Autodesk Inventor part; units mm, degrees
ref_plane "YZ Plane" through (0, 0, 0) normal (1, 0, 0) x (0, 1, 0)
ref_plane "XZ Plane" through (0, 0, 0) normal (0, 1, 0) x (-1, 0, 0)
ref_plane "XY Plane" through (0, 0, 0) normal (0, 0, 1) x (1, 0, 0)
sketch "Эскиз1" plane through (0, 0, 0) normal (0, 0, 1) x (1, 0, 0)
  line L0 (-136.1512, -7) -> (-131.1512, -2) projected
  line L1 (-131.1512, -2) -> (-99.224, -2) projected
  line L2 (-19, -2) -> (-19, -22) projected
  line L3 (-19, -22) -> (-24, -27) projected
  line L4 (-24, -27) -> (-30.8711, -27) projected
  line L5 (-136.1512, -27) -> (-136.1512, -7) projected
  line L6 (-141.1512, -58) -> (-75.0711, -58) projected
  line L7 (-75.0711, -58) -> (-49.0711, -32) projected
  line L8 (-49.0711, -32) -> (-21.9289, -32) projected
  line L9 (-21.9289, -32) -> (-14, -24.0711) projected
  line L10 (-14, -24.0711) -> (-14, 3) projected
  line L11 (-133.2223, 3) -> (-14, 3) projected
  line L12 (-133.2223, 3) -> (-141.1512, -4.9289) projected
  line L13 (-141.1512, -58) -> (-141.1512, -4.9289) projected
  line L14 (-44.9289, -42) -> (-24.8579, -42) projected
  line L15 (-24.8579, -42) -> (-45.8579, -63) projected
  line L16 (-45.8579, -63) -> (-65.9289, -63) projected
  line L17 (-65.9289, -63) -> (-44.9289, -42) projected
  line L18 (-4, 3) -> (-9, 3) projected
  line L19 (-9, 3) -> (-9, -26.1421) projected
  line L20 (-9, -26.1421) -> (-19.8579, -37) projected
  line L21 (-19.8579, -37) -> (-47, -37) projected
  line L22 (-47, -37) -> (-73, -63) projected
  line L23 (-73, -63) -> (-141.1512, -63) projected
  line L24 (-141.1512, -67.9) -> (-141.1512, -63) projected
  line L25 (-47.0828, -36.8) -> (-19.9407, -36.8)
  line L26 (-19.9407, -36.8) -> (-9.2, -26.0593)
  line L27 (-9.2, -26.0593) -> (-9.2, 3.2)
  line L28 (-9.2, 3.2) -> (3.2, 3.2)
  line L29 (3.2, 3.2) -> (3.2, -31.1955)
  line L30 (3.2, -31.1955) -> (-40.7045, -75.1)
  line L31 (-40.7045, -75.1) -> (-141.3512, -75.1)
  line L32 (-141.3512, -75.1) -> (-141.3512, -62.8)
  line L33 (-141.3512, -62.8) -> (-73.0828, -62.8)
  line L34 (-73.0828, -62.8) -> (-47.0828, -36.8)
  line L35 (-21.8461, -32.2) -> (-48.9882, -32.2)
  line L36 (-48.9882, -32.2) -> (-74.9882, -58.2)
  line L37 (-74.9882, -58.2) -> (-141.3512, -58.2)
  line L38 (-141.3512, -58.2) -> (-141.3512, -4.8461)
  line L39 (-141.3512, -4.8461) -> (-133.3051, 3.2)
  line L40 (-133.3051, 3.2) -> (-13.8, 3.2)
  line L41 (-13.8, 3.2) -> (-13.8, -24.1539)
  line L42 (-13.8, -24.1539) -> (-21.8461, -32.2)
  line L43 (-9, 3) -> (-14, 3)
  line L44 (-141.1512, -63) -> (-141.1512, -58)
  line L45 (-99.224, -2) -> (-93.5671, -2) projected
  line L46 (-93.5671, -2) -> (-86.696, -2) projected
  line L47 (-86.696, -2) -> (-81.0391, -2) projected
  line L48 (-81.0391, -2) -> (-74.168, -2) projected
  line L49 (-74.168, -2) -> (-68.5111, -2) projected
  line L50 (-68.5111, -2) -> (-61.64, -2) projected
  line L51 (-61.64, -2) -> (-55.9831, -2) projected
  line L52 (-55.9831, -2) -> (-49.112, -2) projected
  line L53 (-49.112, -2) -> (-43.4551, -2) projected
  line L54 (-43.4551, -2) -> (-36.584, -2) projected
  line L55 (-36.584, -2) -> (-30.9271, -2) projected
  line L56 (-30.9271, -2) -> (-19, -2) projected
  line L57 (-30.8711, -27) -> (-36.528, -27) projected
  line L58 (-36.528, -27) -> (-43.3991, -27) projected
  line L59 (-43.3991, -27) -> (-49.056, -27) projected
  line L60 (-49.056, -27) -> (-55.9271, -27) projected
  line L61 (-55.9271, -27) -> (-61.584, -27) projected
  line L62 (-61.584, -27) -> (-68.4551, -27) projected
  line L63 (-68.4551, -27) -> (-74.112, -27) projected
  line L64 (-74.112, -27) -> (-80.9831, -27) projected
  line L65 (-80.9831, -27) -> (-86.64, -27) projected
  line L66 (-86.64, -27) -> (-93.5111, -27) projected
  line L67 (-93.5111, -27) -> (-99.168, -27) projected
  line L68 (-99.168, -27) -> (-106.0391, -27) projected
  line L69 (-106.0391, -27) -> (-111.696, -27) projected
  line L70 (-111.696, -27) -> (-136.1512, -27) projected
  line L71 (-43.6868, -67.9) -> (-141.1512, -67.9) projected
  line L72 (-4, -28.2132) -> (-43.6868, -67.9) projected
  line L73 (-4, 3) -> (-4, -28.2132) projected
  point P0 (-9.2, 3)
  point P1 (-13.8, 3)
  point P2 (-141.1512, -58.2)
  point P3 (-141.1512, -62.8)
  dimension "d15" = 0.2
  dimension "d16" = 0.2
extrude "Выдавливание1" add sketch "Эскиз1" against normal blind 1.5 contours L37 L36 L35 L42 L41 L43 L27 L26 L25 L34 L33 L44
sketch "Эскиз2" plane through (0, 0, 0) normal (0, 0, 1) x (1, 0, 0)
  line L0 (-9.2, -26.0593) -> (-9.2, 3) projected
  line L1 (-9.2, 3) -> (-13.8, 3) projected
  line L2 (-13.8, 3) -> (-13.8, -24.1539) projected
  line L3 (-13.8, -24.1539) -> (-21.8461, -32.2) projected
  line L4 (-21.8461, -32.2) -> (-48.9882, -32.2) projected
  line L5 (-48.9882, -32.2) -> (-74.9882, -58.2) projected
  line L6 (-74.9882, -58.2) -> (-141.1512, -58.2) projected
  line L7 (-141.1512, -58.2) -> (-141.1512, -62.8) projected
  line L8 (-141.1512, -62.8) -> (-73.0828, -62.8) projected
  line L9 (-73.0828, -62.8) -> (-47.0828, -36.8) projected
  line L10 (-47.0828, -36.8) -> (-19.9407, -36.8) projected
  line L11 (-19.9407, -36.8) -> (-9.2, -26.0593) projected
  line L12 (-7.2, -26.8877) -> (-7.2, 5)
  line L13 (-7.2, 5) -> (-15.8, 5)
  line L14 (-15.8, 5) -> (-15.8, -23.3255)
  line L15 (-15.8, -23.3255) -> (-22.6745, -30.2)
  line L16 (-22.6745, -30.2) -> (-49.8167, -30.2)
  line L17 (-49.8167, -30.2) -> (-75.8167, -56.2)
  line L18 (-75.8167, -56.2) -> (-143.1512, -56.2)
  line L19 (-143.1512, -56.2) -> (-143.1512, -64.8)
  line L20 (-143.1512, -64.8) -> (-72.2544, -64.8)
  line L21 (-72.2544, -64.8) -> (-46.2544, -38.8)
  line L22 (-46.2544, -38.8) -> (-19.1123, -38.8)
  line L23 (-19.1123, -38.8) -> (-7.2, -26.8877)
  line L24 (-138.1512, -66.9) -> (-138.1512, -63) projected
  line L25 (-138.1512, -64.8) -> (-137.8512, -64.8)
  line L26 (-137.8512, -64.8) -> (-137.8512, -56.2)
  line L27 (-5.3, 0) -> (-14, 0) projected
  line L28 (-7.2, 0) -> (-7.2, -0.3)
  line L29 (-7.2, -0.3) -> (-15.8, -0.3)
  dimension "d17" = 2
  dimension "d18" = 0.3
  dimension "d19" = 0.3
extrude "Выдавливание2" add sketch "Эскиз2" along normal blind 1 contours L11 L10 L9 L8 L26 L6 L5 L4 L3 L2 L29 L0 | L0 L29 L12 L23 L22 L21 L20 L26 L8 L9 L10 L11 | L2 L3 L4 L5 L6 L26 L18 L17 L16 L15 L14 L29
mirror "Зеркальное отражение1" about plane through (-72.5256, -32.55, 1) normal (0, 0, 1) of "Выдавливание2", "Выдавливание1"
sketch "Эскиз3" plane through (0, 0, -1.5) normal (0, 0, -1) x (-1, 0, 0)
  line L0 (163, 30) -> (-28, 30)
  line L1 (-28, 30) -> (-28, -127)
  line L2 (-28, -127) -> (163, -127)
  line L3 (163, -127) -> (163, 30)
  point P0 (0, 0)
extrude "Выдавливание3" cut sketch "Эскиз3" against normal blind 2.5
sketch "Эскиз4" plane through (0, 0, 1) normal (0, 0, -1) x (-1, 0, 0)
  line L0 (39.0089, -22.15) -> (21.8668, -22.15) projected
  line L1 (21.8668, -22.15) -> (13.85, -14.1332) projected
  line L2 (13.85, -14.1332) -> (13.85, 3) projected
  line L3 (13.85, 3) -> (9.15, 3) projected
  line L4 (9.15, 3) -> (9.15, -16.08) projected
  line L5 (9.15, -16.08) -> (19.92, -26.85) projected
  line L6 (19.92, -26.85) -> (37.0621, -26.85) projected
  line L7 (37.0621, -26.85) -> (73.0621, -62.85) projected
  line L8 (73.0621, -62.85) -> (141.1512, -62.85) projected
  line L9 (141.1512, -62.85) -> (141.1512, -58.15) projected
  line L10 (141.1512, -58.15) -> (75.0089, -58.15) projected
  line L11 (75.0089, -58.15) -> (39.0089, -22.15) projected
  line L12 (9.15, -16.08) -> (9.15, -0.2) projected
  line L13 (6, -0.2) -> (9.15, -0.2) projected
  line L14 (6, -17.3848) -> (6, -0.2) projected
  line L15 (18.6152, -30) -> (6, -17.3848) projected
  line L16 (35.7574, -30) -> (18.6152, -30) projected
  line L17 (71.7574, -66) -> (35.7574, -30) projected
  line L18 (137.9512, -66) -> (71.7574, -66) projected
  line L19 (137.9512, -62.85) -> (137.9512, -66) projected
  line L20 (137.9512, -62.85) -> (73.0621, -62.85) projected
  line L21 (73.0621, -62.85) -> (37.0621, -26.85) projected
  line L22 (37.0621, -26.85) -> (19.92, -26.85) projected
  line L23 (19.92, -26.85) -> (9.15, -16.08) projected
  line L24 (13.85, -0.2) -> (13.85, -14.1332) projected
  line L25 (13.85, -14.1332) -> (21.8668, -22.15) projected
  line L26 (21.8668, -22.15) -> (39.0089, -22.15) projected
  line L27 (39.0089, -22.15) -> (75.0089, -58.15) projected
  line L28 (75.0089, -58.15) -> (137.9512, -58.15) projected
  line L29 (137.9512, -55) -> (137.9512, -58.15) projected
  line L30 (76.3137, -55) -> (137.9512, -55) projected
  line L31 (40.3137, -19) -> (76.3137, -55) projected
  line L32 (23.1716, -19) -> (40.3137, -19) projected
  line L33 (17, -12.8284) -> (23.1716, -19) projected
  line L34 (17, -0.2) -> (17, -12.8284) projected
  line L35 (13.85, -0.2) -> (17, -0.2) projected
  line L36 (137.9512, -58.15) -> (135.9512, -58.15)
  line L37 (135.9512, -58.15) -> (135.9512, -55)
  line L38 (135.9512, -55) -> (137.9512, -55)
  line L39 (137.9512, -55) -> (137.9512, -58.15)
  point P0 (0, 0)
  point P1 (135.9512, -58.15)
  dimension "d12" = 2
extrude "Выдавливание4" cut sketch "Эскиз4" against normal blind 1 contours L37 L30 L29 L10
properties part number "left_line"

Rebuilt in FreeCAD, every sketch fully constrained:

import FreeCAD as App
import Part
import Sketcher
from FreeCAD import Vector
Q = App.Units.Quantity

doc = App.newDocument("Part")
body = doc.addObject("PartDesign::Body", "Body")

# Sketch on XY plane
sketch1 = doc.addObject("Sketcher::SketchObject", "Sketch")
body.addObject(sketch1)
sketch1.AttachmentSupport = (doc.XY_Plane, [""])
sketch1.MapMode = "FlatFace"
sketch1.addGeometry([
    Part.LineSegment(Vector(-75, -58.2, 0), Vector(-141.2, -58.2, 0)),  # 0
    Part.LineSegment(Vector(-141.2, -58.2, 0), Vector(-141.2, -62.8, 0)),  # 1
    Part.LineSegment(Vector(-141.2, -62.8, 0), Vector(-73.1, -62.8, 0)),  # 2
    Part.LineSegment(Vector(-73.1, -62.8, 0), Vector(-47.1, -36.8, 0)),  # 3
    Part.LineSegment(Vector(-47.1, -36.8, 0), Vector(-19.9, -36.8, 0)),  # 4
    Part.LineSegment(Vector(-19.9, -36.8, 0), Vector(-9.2, -26.1, 0)),  # 5
    Part.LineSegment(Vector(-9.2, -26.1, 0), Vector(-9.2, 3, 0)),  # 6
    Part.LineSegment(Vector(-9.2, 3, 0), Vector(-13.8, 3, 0)),  # 7
    Part.LineSegment(Vector(-13.8, 3, 0), Vector(-13.8, -24.2, 0)),  # 8
    Part.LineSegment(Vector(-13.8, -24.2, 0), Vector(-21.8, -32.2, 0)),  # 9
    Part.LineSegment(Vector(-21.8, -32.2, 0), Vector(-49, -32.2, 0)),  # 10
    Part.LineSegment(Vector(-49, -32.2, 0), Vector(-75, -58.2, 0)),  # 11
], False)
sketch1.addConstraint([
    Sketcher.Constraint("Coincident", 0, 2, 1, 1),
    Sketcher.Constraint("Coincident", 1, 2, 2, 1),
    Sketcher.Constraint("Coincident", 2, 2, 3, 1),
    Sketcher.Constraint("Coincident", 3, 2, 4, 1),
    Sketcher.Constraint("Coincident", 4, 2, 5, 1),
    Sketcher.Constraint("Coincident", 5, 2, 6, 1),
    Sketcher.Constraint("Coincident", 6, 2, 7, 1),
    Sketcher.Constraint("Coincident", 7, 2, 8, 1),
    Sketcher.Constraint("Coincident", 8, 2, 9, 1),
    Sketcher.Constraint("Coincident", 9, 2, 10, 1),
    Sketcher.Constraint("Coincident", 10, 2, 11, 1),
    Sketcher.Constraint("Coincident", 11, 2, 0, 1),
    Sketcher.Constraint("Horizontal", 0),
    Sketcher.Constraint("Vertical", 1),
    Sketcher.Constraint("Horizontal", 2),
    Sketcher.Constraint("Horizontal", 4),
    Sketcher.Constraint("Vertical", 6),
    Sketcher.Constraint("Horizontal", 7),
    Sketcher.Constraint("Vertical", 8),
    Sketcher.Constraint("Horizontal", 10),
    Sketcher.Constraint("Parallel", 3, 5),
    Sketcher.Constraint("Parallel", 5, 9),
    Sketcher.Constraint("Parallel", 9, 11),
    Sketcher.Constraint("Equal", 4, 10),
    Sketcher.Constraint("Equal", 7, 1),
    Sketcher.Constraint("Equal", 3, 11),
    Sketcher.Constraint("Angle", 3, Q("45 deg")),
    Sketcher.Constraint("DistanceX", 7, 2, 7, 1, 4.6),
    Sketcher.Constraint("DistanceY", -1, 1, 6, 2, 3.0),
    Sketcher.Constraint("DistanceX", 2, 2, 3, 2, 26.0),
    Sketcher.Constraint("DistanceY", 0, 2, -1, 1, 58.2),
    Sketcher.Constraint("DistanceX", 5, 2, -1, 1, 9.2),
    Sketcher.Constraint("DistanceX", 0, 2, 0, 1, 66.163),
    Sketcher.Constraint("DistanceX", 4, 1, 4, 2, 27.142),
    Sketcher.Constraint("DistanceY", 8, 2, 8, 1, 27.154),
    Sketcher.Constraint("DistanceX", 2, 1, 2, 2, 68.0684),
])
pad1 = doc.addObject("PartDesign::Pad", "Pad")
body.addObject(pad1)
pad1.Profile = sketch1
pad1.Length = 1.5
pad1.Reversed = True

# Sketch on XY plane
sketch2 = doc.addObject("Sketcher::SketchObject", "Sketch001")
body.addObject(sketch2)
sketch2.AttachmentSupport = (doc.XY_Plane, [""])
sketch2.MapMode = "FlatFace"
sketch2.addGeometry([
    Part.LineSegment(Vector(-138, -65, 0), Vector(-72, -65, 0)),  # 0
    Part.LineSegment(Vector(-72, -65, 0), Vector(-46, -39, 0)),  # 1
    Part.LineSegment(Vector(-46, -39, 0), Vector(-19, -39, 0)),  # 2
    Part.LineSegment(Vector(-19, -39, 0), Vector(-7, -27, 0)),  # 3
    Part.LineSegment(Vector(-7, -27, 0), Vector(-7, 0, 0)),  # 4
    Part.LineSegment(Vector(-7, 0, 0), Vector(-16, 0, 0)),  # 5
    Part.LineSegment(Vector(-16, 0, 0), Vector(-16, -23, 0)),  # 6
    Part.LineSegment(Vector(-16, -23, 0), Vector(-23, -30, 0)),  # 7
    Part.LineSegment(Vector(-23, -30, 0), Vector(-50, -30, 0)),  # 8
    Part.LineSegment(Vector(-50, -30, 0), Vector(-76, -56, 0)),  # 9
    Part.LineSegment(Vector(-76, -56, 0), Vector(-138, -56, 0)),  # 10
    Part.LineSegment(Vector(-138, -56, 0), Vector(-138, -65, 0)),  # 11
], False)
sketch2.addConstraint([
    Sketcher.Constraint("Coincident", 0, 2, 1, 1),
    Sketcher.Constraint("Coincident", 1, 2, 2, 1),
    Sketcher.Constraint("Coincident", 2, 2, 3, 1),
    Sketcher.Constraint("Coincident", 3, 2, 4, 1),
    Sketcher.Constraint("Coincident", 4, 2, 5, 1),
    Sketcher.Constraint("Coincident", 5, 2, 6, 1),
    Sketcher.Constraint("Coincident", 6, 2, 7, 1),
    Sketcher.Constraint("Coincident", 7, 2, 8, 1),
    Sketcher.Constraint("Coincident", 8, 2, 9, 1),
    Sketcher.Constraint("Coincident", 9, 2, 10, 1),
    Sketcher.Constraint("Coincident", 10, 2, 11, 1),
    Sketcher.Constraint("Coincident", 11, 2, 0, 1),
    Sketcher.Constraint("Horizontal", 0),
    Sketcher.Constraint("Horizontal", 2),
    Sketcher.Constraint("Vertical", 4),
    Sketcher.Constraint("Horizontal", 5),
    Sketcher.Constraint("Vertical", 6),
    Sketcher.Constraint("Horizontal", 8),
    Sketcher.Constraint("Horizontal", 10),
    Sketcher.Constraint("Vertical", 11),
    Sketcher.Constraint("Parallel", 1, 3),
    Sketcher.Constraint("Parallel", 3, 7),
    Sketcher.Constraint("Parallel", 7, 9),
    Sketcher.Constraint("Equal", 2, 8),
    Sketcher.Constraint("Equal", 5, 11),
    Sketcher.Constraint("Equal", 1, 9),
    Sketcher.Constraint("DistanceY", 4, 2, -1, 1, 0.3),
    Sketcher.Constraint("Angle", 1, Q("45 deg")),
    Sketcher.Constraint("DistanceX", 5, 2, 5, 1, 8.6),
    Sketcher.Constraint("DistanceX", 0, 2, 1, 2, 26.0),
    Sketcher.Constraint("DistanceY", 0, 2, -1, 1, 64.8),
    Sketcher.Constraint("DistanceX", 3, 2, -1, 1, 7.2),
    Sketcher.Constraint("DistanceX", 2, 1, 2, 2, 27.142),
    Sketcher.Constraint("DistanceX", 1, 2, 7, 2, 23.58),
    Sketcher.Constraint("Distance", 7, 9.722),
    Sketcher.Constraint("DistanceX", 0, 1, 0, 2, 65.5968),
])
pad2 = doc.addObject("PartDesign::Pad", "Pad001")
body.addObject(pad2)
pad2.Profile = sketch2
pad2.Length = 1
doc.recompute()

datumplane = doc.addObject("PartDesign::Plane", "DatumPlane")
body.addObject(datumplane)
datumplane.AttachmentSupport = (doc.XY_Plane, [""])
datumplane.MapMode = "FlatFace"
datumplane.AttachmentOffset = App.Placement(Vector(0, 0, 1), App.Rotation())
mirrored = doc.addObject("PartDesign::Mirrored", "Mirrored")
body.addObject(mirrored)
mirrored.Originals = [pad2, pad1]
mirrored.MirrorPlane = (datumplane, [""])
body.Tip = mirrored

# Sketch on XY plane
sketch3 = doc.addObject("Sketcher::SketchObject", "Sketch002")
body.addObject(sketch3)
sketch3.AttachmentSupport = (doc.XY_Plane, [""])
sketch3.MapMode = "FlatFace"
sketch3.AttachmentOffset = App.Placement(Vector(0, 0, -1.5), App.Rotation())
sketch3.addGeometry([
    Part.LineSegment(Vector(-163, -127, 0), Vector(-163, 30, 0)),
    Part.LineSegment(Vector(-163, 30, 0), Vector(28, 30, 0)),
    Part.LineSegment(Vector(28, 30, 0), Vector(28, -127, 0)),
    Part.LineSegment(Vector(28, -127, 0), Vector(-163, -127, 0)),
], False)
sketch3.addConstraint([
    Sketcher.Constraint("Coincident", 0, 2, 1, 1),
    Sketcher.Constraint("Coincident", 1, 2, 2, 1),
    Sketcher.Constraint("Coincident", 2, 2, 3, 1),
    Sketcher.Constraint("Coincident", 3, 2, 0, 1),
    Sketcher.Constraint("Vertical", 0),
    Sketcher.Constraint("Horizontal", 1),
    Sketcher.Constraint("Vertical", 2),
    Sketcher.Constraint("Horizontal", 3),
    Sketcher.Constraint("DistanceX", 1, 1, 1, 2, 191.0),
    Sketcher.Constraint("DistanceY", 0, 1, 0, 2, 157.0),
    Sketcher.Constraint("DistanceX", 0, 2, -1, 1, 163.0),
    Sketcher.Constraint("DistanceY", -1, 1, 0, 2, 30.0),
])
pocket1 = doc.addObject("PartDesign::Pocket", "Pocket")
body.addObject(pocket1)
pocket1.Profile = sketch3
pocket1.Length = 2.5
pocket1.Reversed = True

# Sketch on XY plane
sketch4 = doc.addObject("Sketcher::SketchObject", "Sketch003")
body.addObject(sketch4)
sketch4.AttachmentSupport = (doc.XY_Plane, [""])
sketch4.MapMode = "FlatFace"
sketch4.AttachmentOffset = App.Placement(Vector(0, 0, 1), App.Rotation())
sketch4.addGeometry([
    Part.LineSegment(Vector(-136, -55, 0), Vector(-136, -58.1, 0)),
    Part.LineSegment(Vector(-136, -58.1, 0), Vector(-138, -58.1, 0)),
    Part.LineSegment(Vector(-138, -58.1, 0), Vector(-138, -55, 0)),
    Part.LineSegment(Vector(-138, -55, 0), Vector(-136, -55, 0)),
], False)
sketch4.addConstraint([
    Sketcher.Constraint("Coincident", 0, 2, 1, 1),
    Sketcher.Constraint("Coincident", 1, 2, 2, 1),
    Sketcher.Constraint("Coincident", 2, 2, 3, 1),
    Sketcher.Constraint("Coincident", 3, 2, 0, 1),
    Sketcher.Constraint("Vertical", 0),
    Sketcher.Constraint("Horizontal", 1),
    Sketcher.Constraint("Vertical", 2),
    Sketcher.Constraint("Horizontal", 3),
    Sketcher.Constraint("DistanceX", 1, 2, 1, 1, 2.0),
    Sketcher.Constraint("DistanceY", 2, 2, -1, 1, 55.0),
    Sketcher.Constraint("DistanceY", 0, 2, 0, 1, 3.15),
    Sketcher.Constraint("DistanceX", 0, 2, -1, 1, 135.9512),
])
pocket2 = doc.addObject("PartDesign::Pocket", "Pocket001")
body.addObject(pocket2)
pocket2.Profile = sketch4
pocket2.Length = 1
pocket2.Reversed = True

doc.recompute()
